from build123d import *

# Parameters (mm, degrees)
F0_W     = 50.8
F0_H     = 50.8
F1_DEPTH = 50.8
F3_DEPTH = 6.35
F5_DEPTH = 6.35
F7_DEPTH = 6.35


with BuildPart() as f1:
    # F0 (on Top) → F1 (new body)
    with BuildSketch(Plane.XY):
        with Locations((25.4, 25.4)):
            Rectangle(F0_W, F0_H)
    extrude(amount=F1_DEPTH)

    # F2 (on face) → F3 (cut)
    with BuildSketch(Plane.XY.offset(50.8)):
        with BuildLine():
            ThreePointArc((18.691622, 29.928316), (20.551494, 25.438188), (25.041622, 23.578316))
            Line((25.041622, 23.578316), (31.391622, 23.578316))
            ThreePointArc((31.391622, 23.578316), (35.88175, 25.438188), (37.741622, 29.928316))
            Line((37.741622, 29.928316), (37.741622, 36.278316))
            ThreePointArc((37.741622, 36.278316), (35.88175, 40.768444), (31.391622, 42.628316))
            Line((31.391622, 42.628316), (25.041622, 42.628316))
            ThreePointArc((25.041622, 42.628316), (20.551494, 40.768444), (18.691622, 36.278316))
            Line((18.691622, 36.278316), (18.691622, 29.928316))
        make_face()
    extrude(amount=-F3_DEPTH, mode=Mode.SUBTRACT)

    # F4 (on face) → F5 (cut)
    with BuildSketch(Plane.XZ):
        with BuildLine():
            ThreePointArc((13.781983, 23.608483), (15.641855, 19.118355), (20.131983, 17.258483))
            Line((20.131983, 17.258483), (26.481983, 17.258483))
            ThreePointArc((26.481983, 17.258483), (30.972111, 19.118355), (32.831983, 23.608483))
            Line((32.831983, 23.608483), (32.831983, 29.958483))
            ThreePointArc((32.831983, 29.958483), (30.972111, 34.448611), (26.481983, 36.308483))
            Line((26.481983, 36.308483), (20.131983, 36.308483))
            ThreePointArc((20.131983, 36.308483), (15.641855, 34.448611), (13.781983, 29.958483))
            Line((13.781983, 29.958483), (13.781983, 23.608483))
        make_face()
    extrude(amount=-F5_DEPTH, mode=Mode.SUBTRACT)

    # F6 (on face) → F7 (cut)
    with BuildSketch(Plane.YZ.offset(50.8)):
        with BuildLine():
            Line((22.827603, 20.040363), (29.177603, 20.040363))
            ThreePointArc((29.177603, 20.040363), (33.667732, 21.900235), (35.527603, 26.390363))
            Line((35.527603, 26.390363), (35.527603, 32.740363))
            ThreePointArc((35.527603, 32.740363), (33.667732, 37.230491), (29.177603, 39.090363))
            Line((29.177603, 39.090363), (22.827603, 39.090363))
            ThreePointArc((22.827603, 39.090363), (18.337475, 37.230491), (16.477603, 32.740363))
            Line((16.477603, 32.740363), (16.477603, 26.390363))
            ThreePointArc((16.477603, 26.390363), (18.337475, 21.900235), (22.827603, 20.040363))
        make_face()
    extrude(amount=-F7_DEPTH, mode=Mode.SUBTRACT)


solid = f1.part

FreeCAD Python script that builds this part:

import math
import FreeCAD as App
import Part
import Sketcher
from FreeCAD import Vector
Q = App.Units.Quantity

doc = App.newDocument("Part")
body = doc.addObject("PartDesign::Body", "Body")

sketch1 = body.newObject("Sketcher::SketchObject", "Sketch")
sketch1.AttachmentSupport = (doc.getObject("XY_Plane"), [""])
sketch1.MapMode = "FlatFace"
sketch1.addGeometry(Part.LineSegment(Vector(0, 51, 0), Vector(0, 0, 0)), False)
sketch1.addGeometry(Part.LineSegment(Vector(0, 0, 0), Vector(51, 0, 0)), False)
sketch1.addGeometry(Part.LineSegment(Vector(51, 0, 0), Vector(51, 51, 0)), False)
sketch1.addGeometry(Part.LineSegment(Vector(51, 51, 0), Vector(0, 51, 0)), False)
sketch1.addConstraint(Sketcher.Constraint("Coincident", 0, 2, 1, 1))
sketch1.addConstraint(Sketcher.Constraint("Coincident", 1, 2, 2, 1))
sketch1.addConstraint(Sketcher.Constraint("Coincident", 2, 2, 3, 1))
sketch1.addConstraint(Sketcher.Constraint("Coincident", 3, 2, 0, 1))
sketch1.addConstraint(Sketcher.Constraint("Vertical", 0))
sketch1.addConstraint(Sketcher.Constraint("Horizontal", 1))
sketch1.addConstraint(Sketcher.Constraint("Vertical", 2))
sketch1.addConstraint(Sketcher.Constraint("Horizontal", 3))
sketch1.addConstraint(Sketcher.Constraint("Coincident", 0, 2, -1, 1))
sketch1.addConstraint(Sketcher.Constraint("Equal", 3, 0))
sketch1.addConstraint(Sketcher.Constraint("DistanceX", 1, 1, 1, 2, Q("2 in")))
pad1 = body.newObject("PartDesign::Pad", "Pad")
pad1.Profile = sketch1
pad1.Length = Q("2 in")

sketch2 = body.newObject("Sketcher::SketchObject", "Sketch001")
sketch2.AttachmentSupport = (doc.getObject("XY_Plane"), [""])
sketch2.MapMode = "FlatFace"
sketch2.AttachmentOffset = App.Placement(Vector(0, 0, 2 * 25.4), App.Rotation())
sketch2.addGeometry(Part.ArcOfCircle(Part.Circle(Vector(25, 30, 0), Vector(0, 0, 1), 6), math.radians(-180), math.radians(-90)), False)
sketch2.addGeometry(Part.LineSegment(Vector(25, 24, 0), Vector(31, 24, 0)), False)
sketch2.addGeometry(Part.ArcOfCircle(Part.Circle(Vector(31, 30, 0), Vector(0, 0, 1), 6), math.radians(-90), math.radians(0)), False)
sketch2.addGeometry(Part.LineSegment(Vector(38, 30, 0), Vector(38, 36, 0)), False)
sketch2.addGeometry(Part.ArcOfCircle(Part.Circle(Vector(31, 36, 0), Vector(0, 0, 1), 6), math.radians(0), math.radians(90)), False)
sketch2.addGeometry(Part.LineSegment(Vector(31, 43, 0), Vector(25, 43, 0)), False)
sketch2.addGeometry(Part.ArcOfCircle(Part.Circle(Vector(25, 36, 0), Vector(0, 0, 1), 6), math.radians(90), math.radians(180)), False)
sketch2.addGeometry(Part.LineSegment(Vector(19, 36, 0), Vector(19, 30, 0)), False)
sketch2.addConstraint(Sketcher.Constraint("Tangent", 0, 2, 1, 1))
sketch2.addConstraint(Sketcher.Constraint("Tangent", 1, 2, 2, 1))
sketch2.addConstraint(Sketcher.Constraint("Tangent", 2, 2, 3, 1))
sketch2.addConstraint(Sketcher.Constraint("Tangent", 3, 2, 4, 1))
sketch2.addConstraint(Sketcher.Constraint("Tangent", 4, 2, 5, 1))
sketch2.addConstraint(Sketcher.Constraint("Tangent", 5, 2, 6, 1))
sketch2.addConstraint(Sketcher.Constraint("Tangent", 6, 2, 7, 1))
sketch2.addConstraint(Sketcher.Constraint("Tangent", 7, 2, 0, 1))
sketch2.addConstraint(Sketcher.Constraint("Horizontal", 1))
sketch2.addConstraint(Sketcher.Constraint("Vertical", 3))
sketch2.addConstraint(Sketcher.Constraint("Horizontal", 5))
sketch2.addConstraint(Sketcher.Constraint("Vertical", 7))
sketch2.addConstraint(Sketcher.Constraint("Equal", 0, 2))
sketch2.addConstraint(Sketcher.Constraint("Equal", 2, 4))
sketch2.addConstraint(Sketcher.Constraint("Equal", 4, 6))
sketch2.addConstraint(Sketcher.Constraint("Equal", 5, 3))
sketch2.addConstraint(Sketcher.Constraint("Radius", 0, Q("0.25 in")))
sketch2.addConstraint(Sketcher.Constraint("DistanceX", 1, 1, 1, 2, Q("0.25 in")))
sketch2.addConstraint(Sketcher.Constraint("DistanceX", -1, 1, 2, 3, Q("31.391622 mm")))
sketch2.addConstraint(Sketcher.Constraint("DistanceY", -1, 1, 0, 3, Q("29.928316 mm")))
pocket1 = body.newObject("PartDesign::Pocket", "Pocket")
pocket1.Profile = sketch2
pocket1.Length = Q("0.25 in")

sketch3 = body.newObject("Sketcher::SketchObject", "Sketch002")
sketch3.AttachmentSupport = (doc.getObject("XZ_Plane"), [""])
sketch3.MapMode = "FlatFace"
sketch3.addGeometry(Part.ArcOfCircle(Part.Circle(Vector(20, 24, 0), Vector(0, 0, 1), 6), math.radians(-180), math.radians(-90)), False)
sketch3.addGeometry(Part.LineSegment(Vector(20, 17, 0), Vector(26, 17, 0)), False)
sketch3.addGeometry(Part.ArcOfCircle(Part.Circle(Vector(26, 24, 0), Vector(0, 0, 1), 6), math.radians(-90), math.radians(0)), False)
sketch3.addGeometry(Part.LineSegment(Vector(33, 24, 0), Vector(33, 30, 0)), False)
sketch3.addGeometry(Part.ArcOfCircle(Part.Circle(Vector(26, 30, 0), Vector(0, 0, 1), 6), math.radians(0), math.radians(90)), False)
sketch3.addGeometry(Part.LineSegment(Vector(26, 36, 0), Vector(20, 36, 0)), False)
sketch3.addGeometry(Part.ArcOfCircle(Part.Circle(Vector(20, 30, 0), Vector(0, 0, 1), 6), math.radians(90), math.radians(180)), False)
sketch3.addGeometry(Part.LineSegment(Vector(14, 30, 0), Vector(14, 24, 0)), False)
sketch3.addConstraint(Sketcher.Constraint("Tangent", 0, 2, 1, 1))
sketch3.addConstraint(Sketcher.Constraint("Tangent", 1, 2, 2, 1))
sketch3.addConstraint(Sketcher.Constraint("Tangent", 2, 2, 3, 1))
sketch3.addConstraint(Sketcher.Constraint("Tangent", 3, 2, 4, 1))
sketch3.addConstraint(Sketcher.Constraint("Tangent", 4, 2, 5, 1))
sketch3.addConstraint(Sketcher.Constraint("Tangent", 5, 2, 6, 1))
sketch3.addConstraint(Sketcher.Constraint("Tangent", 6, 2, 7, 1))
sketch3.addConstraint(Sketcher.Constraint("Tangent", 7, 2, 0, 1))
sketch3.addConstraint(Sketcher.Constraint("Horizontal", 1))
sketch3.addConstraint(Sketcher.Constraint("Vertical", 3))
sketch3.addConstraint(Sketcher.Constraint("Horizontal", 5))
sketch3.addConstraint(Sketcher.Constraint("Vertical", 7))
sketch3.addConstraint(Sketcher.Constraint("Equal", 0, 2))
sketch3.addConstraint(Sketcher.Constraint("Equal", 2, 4))
sketch3.addConstraint(Sketcher.Constraint("Equal", 4, 6))
sketch3.addConstraint(Sketcher.Constraint("Equal", 5, 3))
sketch3.addConstraint(Sketcher.Constraint("Radius", 0, Q("0.25 in")))
sketch3.addConstraint(Sketcher.Constraint("DistanceX", 1, 1, 1, 2, Q("0.25 in")))
sketch3.addConstraint(Sketcher.Constraint("DistanceX", -1, 1, 0, 3, Q("20.131983 mm")))
sketch3.addConstraint(Sketcher.Constraint("DistanceY", -1, 1, 0, 3, Q("23.608483 mm")))
pocket2 = body.newObject("PartDesign::Pocket", "Pocket001")
pocket2.Profile = sketch3
pocket2.Length = Q("0.25 in")

sketch4 = body.newObject("Sketcher::SketchObject", "Sketch003")
sketch4.AttachmentSupport = (doc.getObject("YZ_Plane"), [""])
sketch4.MapMode = "FlatFace"
sketch4.AttachmentOffset = App.Placement(Vector(0, 0, 2 * 25.4), App.Rotation())
sketch4.addGeometry(Part.LineSegment(Vector(23, 20, 0), Vector(29, 20, 0)), False)
sketch4.addGeometry(Part.ArcOfCircle(Part.Circle(Vector(29, 26, 0), Vector(0, 0, 1), 6), math.radians(-90), math.radians(0)), False)
sketch4.addGeometry(Part.LineSegment(Vector(36, 26, 0), Vector(36, 33, 0)), False)
sketch4.addGeometry(Part.ArcOfCircle(Part.Circle(Vector(29, 33, 0), Vector(0, 0, 1), 6), math.radians(0), math.radians(90)), False)
sketch4.addGeometry(Part.LineSegment(Vector(29, 39, 0), Vector(23, 39, 0)), False)
sketch4.addGeometry(Part.ArcOfCircle(Part.Circle(Vector(23, 33, 0), Vector(0, 0, 1), 6), math.radians(90), math.radians(180)), False)
sketch4.addGeometry(Part.LineSegment(Vector(16, 33, 0), Vector(16, 26, 0)), False)
sketch4.addGeometry(Part.ArcOfCircle(Part.Circle(Vector(23, 26, 0), Vector(0, 0, 1), 6), math.radians(-180), math.radians(-90)), False)
sketch4.addConstraint(Sketcher.Constraint("Tangent", 0, 2, 1, 1))
sketch4.addConstraint(Sketcher.Constraint("Tangent", 1, 2, 2, 1))
sketch4.addConstraint(Sketcher.Constraint("Tangent", 2, 2, 3, 1))
sketch4.addConstraint(Sketcher.Constraint("Tangent", 3, 2, 4, 1))
sketch4.addConstraint(Sketcher.Constraint("Tangent", 4, 2, 5, 1))
sketch4.addConstraint(Sketcher.Constraint("Tangent", 5, 2, 6, 1))
sketch4.addConstraint(Sketcher.Constraint("Tangent", 6, 2, 7, 1))
sketch4.addConstraint(Sketcher.Constraint("Tangent", 7, 2, 0, 1))
sketch4.addConstraint(Sketcher.Constraint("Horizontal", 0))
sketch4.addConstraint(Sketcher.Constraint("Vertical", 2))
sketch4.addConstraint(Sketcher.Constraint("Horizontal", 4))
sketch4.addConstraint(Sketcher.Constraint("Vertical", 6))
sketch4.addConstraint(Sketcher.Constraint("Equal", 1, 3))
sketch4.addConstraint(Sketcher.Constraint("Equal", 3, 5))
sketch4.addConstraint(Sketcher.Constraint("Equal", 5, 7))
sketch4.addConstraint(Sketcher.Constraint("Equal", 4, 2))
sketch4.addConstraint(Sketcher.Constraint("Radius", 1, Q("0.2499999 in")))
sketch4.addConstraint(Sketcher.Constraint("DistanceX", 0, 1, 0, 2, Q("0.25 in")))
sketch4.addConstraint(Sketcher.Constraint("DistanceY", -1, 1, 1, 3, Q("26.390362 mm")))
sketch4.addConstraint(Sketcher.Constraint("DistanceX", -1, 1, 1, 3, Q("29.177605 mm")))
pocket3 = body.newObject("PartDesign::Pocket", "Pocket002")
pocket3.Profile = sketch4
pocket3.Length = Q("0.25 in")

doc.recompute()
